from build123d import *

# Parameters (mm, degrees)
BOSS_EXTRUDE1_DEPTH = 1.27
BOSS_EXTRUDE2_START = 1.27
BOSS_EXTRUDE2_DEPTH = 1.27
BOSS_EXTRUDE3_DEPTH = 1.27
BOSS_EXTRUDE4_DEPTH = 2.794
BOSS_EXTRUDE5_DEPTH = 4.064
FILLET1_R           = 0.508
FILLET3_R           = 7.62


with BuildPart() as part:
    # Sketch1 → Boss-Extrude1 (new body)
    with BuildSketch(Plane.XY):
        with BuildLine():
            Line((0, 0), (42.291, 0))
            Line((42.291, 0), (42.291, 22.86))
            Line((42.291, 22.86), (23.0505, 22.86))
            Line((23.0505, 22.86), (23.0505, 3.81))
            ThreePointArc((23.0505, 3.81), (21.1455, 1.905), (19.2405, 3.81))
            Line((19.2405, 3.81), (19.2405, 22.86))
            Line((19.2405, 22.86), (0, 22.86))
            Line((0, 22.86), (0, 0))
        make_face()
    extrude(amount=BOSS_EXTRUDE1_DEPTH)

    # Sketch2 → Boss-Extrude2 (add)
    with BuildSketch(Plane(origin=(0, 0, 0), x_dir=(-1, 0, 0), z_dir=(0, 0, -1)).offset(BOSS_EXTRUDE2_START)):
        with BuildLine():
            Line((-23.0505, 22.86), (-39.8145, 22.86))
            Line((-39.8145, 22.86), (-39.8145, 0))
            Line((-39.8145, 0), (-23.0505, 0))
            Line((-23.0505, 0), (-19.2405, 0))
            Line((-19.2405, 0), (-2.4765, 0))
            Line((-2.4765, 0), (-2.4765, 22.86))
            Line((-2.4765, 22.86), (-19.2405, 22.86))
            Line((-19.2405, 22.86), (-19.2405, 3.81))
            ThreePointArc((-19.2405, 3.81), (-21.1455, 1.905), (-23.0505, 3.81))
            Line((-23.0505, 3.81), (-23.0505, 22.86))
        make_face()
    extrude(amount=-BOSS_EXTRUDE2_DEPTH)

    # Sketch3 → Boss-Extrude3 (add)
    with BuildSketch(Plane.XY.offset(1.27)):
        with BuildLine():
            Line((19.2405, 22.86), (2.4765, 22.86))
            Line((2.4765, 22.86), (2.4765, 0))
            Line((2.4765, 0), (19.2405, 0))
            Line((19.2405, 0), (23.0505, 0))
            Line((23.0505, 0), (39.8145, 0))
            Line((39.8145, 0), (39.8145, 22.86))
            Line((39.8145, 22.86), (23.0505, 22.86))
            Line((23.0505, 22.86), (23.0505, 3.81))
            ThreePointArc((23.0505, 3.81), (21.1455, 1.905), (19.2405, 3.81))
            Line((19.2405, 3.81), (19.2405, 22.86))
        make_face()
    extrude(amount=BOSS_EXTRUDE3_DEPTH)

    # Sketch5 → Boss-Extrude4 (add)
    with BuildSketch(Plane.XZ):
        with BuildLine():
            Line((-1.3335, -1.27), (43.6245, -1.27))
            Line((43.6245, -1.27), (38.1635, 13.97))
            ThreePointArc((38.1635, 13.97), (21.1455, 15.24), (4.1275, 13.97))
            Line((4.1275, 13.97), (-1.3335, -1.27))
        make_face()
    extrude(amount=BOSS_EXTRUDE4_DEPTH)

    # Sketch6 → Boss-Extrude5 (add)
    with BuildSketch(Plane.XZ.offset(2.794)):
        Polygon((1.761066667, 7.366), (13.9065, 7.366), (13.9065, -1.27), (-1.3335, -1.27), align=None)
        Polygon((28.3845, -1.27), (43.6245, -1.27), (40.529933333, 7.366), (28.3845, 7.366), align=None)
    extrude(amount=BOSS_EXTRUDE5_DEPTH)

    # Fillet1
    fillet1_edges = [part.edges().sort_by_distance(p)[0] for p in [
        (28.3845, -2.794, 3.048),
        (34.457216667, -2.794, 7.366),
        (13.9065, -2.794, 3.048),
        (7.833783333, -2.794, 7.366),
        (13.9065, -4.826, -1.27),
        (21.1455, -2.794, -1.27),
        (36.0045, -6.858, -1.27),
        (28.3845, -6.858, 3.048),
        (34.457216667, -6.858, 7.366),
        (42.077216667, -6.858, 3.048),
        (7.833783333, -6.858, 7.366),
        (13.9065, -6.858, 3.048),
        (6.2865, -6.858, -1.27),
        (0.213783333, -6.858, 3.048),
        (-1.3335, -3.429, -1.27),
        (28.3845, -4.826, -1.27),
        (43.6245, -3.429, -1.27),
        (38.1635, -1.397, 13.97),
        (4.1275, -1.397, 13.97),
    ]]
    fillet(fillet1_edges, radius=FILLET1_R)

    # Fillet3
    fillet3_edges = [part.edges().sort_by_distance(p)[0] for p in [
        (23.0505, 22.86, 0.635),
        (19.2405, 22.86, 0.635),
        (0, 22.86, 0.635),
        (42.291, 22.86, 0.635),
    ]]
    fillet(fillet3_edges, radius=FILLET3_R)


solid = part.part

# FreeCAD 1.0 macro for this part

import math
import FreeCAD as App
import Part
import Sketcher

V = App.Vector
Q = App.Units.Quantity


def edges_at(feature, points):
    """Names of the edges that pass closest to the given points."""
    edges = feature.Shape.Edges
    near = lambda p: min(range(len(edges)), key=lambda i: edges[i].distToShape(Part.Vertex(*p))[0])
    return sorted({f"Edge{near(p) + 1}" for p in points})


def add_polygon(sketch, points):
    """Adds a closed chain of lines whose ends are joined by coincident constraints."""
    first, n = sketch.GeometryCount, len(points)
    for a, b in zip(points, points[1:] + points[:1]):
        sketch.addGeometry(Part.LineSegment(App.Vector(*a, 0), App.Vector(*b, 0)), False)
    for i in range(n):
        sketch.addConstraint(Sketcher.Constraint("Coincident", first + i, 2, first + (i + 1) % n, 1))

doc = App.newDocument("Part")
body = doc.addObject("PartDesign::Body", "Body")

# Sketch on XY plane
sketch1 = body.newObject("Sketcher::SketchObject", "Sketch")
sketch1.AttachmentSupport = (doc.getObject("XY_Plane"), [""])
sketch1.MapMode = "FlatFace"
sketch1.addGeometry([
    Part.LineSegment(V(0, 0, 0), V(42.3, 0, 0)),  # 0
    Part.LineSegment(V(42.3, 0, 0), V(42.3, 22.9, 0)),  # 1
    Part.LineSegment(V(42.3, 22.9, 0), V(23.1, 22.9, 0)),  # 2
    Part.LineSegment(V(23.1, 22.9, 0), V(23.1, 3.8, 0)),  # 3
    Part.ArcOfCircle(Part.Circle(V(21.1, 3.8, 0), V(0, 0, 1), 1.9), math.radians(180), math.radians(360)),  # 4
    Part.LineSegment(V(19.2, 3.8, 0), V(19.2, 22.9, 0)),  # 5
    Part.LineSegment(V(19.2, 22.9, 0), V(0, 22.9, 0)),  # 6
    Part.LineSegment(V(0, 22.9, 0), V(0, 0, 0)),  # 7
], False)
sketch1.addConstraint([
    Sketcher.Constraint("Coincident", 0, 2, 1, 1),
    Sketcher.Constraint("Coincident", 1, 2, 2, 1),
    Sketcher.Constraint("Coincident", 2, 2, 3, 1),
    Sketcher.Constraint("Tangent", 3, 2, 4, 2),
    Sketcher.Constraint("Tangent", 4, 1, 5, 1),
    Sketcher.Constraint("Coincident", 5, 2, 6, 1),
    Sketcher.Constraint("Coincident", 6, 2, 7, 1),
    Sketcher.Constraint("Coincident", 7, 2, 0, 1),
    Sketcher.Constraint("Horizontal", 0),
    Sketcher.Constraint("Vertical", 1),
    Sketcher.Constraint("Horizontal", 2),
    Sketcher.Constraint("Vertical", 3),
    Sketcher.Constraint("Vertical", 5),
    Sketcher.Constraint("Horizontal", 6),
    Sketcher.Constraint("Vertical", 7),
    Sketcher.Constraint("Coincident", 7, 2, -1, 1),
    Sketcher.Constraint("Horizontal", 2, 2, 5, 2),
    Sketcher.Constraint("Equal", 2, 6),
    Sketcher.Constraint("DistanceY", 1, 1, 1, 2, Q("0.9 in")),
    Sketcher.Constraint("Radius", 4, Q("0.075 in")),
    Sketcher.Constraint("DistanceY", 3, 2, 3, 1, Q("0.75 in")),
    Sketcher.Constraint("DistanceX", 0, 1, 0, 2, Q("1.665 in")),
])
pad1 = body.newObject("PartDesign::Pad", "Pad")
pad1.Profile = sketch1
pad1.Length = Q("0.05 in")

# Sketch on XY plane
sketch2 = body.newObject("Sketcher::SketchObject", "Sketch001")
sketch2.AttachmentSupport = (doc.getObject("XY_Plane"), [""])
sketch2.MapMode = "FlatFace"
sketch2.AttachmentOffset = App.Placement(V(0, 0, -0.05 * 25.4), App.Rotation())
sketch2.addGeometry([
    Part.LineSegment(V(23.1, 22.9, 0), V(39.8, 22.9, 0)),  # 0
    Part.LineSegment(V(39.8, 22.9, 0), V(39.8, 0, 0)),  # 1
    Part.LineSegment(V(39.8, 0, 0), V(2.5, 0, 0)),  # 2
    Part.LineSegment(V(2.5, 0, 0), V(2.5, 22.9, 0)),  # 3
    Part.LineSegment(V(2.5, 22.9, 0), V(19.2, 22.9, 0)),  # 4
    Part.LineSegment(V(19.2, 22.9, 0), V(19.2, 3.8, 0)),  # 5
    Part.ArcOfCircle(Part.Circle(V(21.1, 3.8, 0), V(0, 0, 1), 1.9), math.radians(180), math.radians(360)),  # 6
    Part.LineSegment(V(23.1, 3.8, 0), V(23.1, 22.9, 0)),  # 7
], False)
sketch2.addConstraint([
    Sketcher.Constraint("Coincident", 0, 2, 1, 1),
    Sketcher.Constraint("Coincident", 1, 2, 2, 1),
    Sketcher.Constraint("Coincident", 2, 2, 3, 1),
    Sketcher.Constraint("Coincident", 3, 2, 4, 1),
    Sketcher.Constraint("Coincident", 4, 2, 5, 1),
    Sketcher.Constraint("Tangent", 5, 2, 6, 1),
    Sketcher.Constraint("Tangent", 6, 2, 7, 1),
    Sketcher.Constraint("Coincident", 7, 2, 0, 1),
    Sketcher.Constraint("Horizontal", 0),
    Sketcher.Constraint("Vertical", 1),
    Sketcher.Constraint("Horizontal", 2),
    Sketcher.Constraint("Vertical", 3),
    Sketcher.Constraint("Horizontal", 4),
    Sketcher.Constraint("Vertical", 5),
    Sketcher.Constraint("Vertical", 7),
    Sketcher.Constraint("PointOnObject", 1, 2, -1),
    Sketcher.Constraint("Horizontal", 0, 2, 3, 2),
    Sketcher.Constraint("Equal", 0, 4),
    Sketcher.Constraint("DistanceY", 1, 2, 1, 1, Q("0.9 in")),
    Sketcher.Constraint("Radius", 6, Q("0.075 in")),
    Sketcher.Constraint("DistanceX", 0, 1, 0, 2, Q("0.66 in")),
    Sketcher.Constraint("DistanceY", 5, 2, 5, 1, Q("0.75 in")),
    Sketcher.Constraint("DistanceX", -1, 1, 6, 3, Q("0.8325 in")),
])
pad2 = body.newObject("PartDesign::Pad", "Pad001")
pad2.Profile = sketch2
pad2.Length = Q("0.05 in")

# Sketch on XY plane
sketch3 = body.newObject("Sketcher::SketchObject", "Sketch002")
sketch3.AttachmentSupport = (doc.getObject("XY_Plane"), [""])
sketch3.MapMode = "FlatFace"
sketch3.AttachmentOffset = App.Placement(V(0, 0, 0.05 * 25.4), App.Rotation())
sketch3.addGeometry([
    Part.LineSegment(V(19.2, 22.9, 0), V(2.5, 22.9, 0)),  # 0
    Part.LineSegment(V(2.5, 22.9, 0), V(2.5, 0, 0)),  # 1
    Part.LineSegment(V(2.5, 0, 0), V(39.8, 0, 0)),  # 2
    Part.LineSegment(V(39.8, 0, 0), V(39.8, 22.9, 0)),  # 3
    Part.LineSegment(V(39.8, 22.9, 0), V(23.1, 22.9, 0)),  # 4
    Part.LineSegment(V(23.1, 22.9, 0), V(23.1, 3.8, 0)),  # 5
    Part.ArcOfCircle(Part.Circle(V(21.1, 3.8, 0), V(0, 0, 1), 1.9), math.radians(180), math.radians(360)),  # 6
    Part.LineSegment(V(19.2, 3.8, 0), V(19.2, 22.9, 0)),  # 7
], False)
sketch3.addConstraint([
    Sketcher.Constraint("Coincident", 0, 2, 1, 1),
    Sketcher.Constraint("Coincident", 1, 2, 2, 1),
    Sketcher.Constraint("Coincident", 2, 2, 3, 1),
    Sketcher.Constraint("Coincident", 3, 2, 4, 1),
    Sketcher.Constraint("Coincident", 4, 2, 5, 1),
    Sketcher.Constraint("Tangent", 5, 2, 6, 2),
    Sketcher.Constraint("Tangent", 6, 1, 7, 1),
    Sketcher.Constraint("Coincident", 7, 2, 0, 1),
    Sketcher.Constraint("Horizontal", 0),
    Sketcher.Constraint("Vertical", 1),
    Sketcher.Constraint("Horizontal", 2),
    Sketcher.Constraint("Vertical", 3),
    Sketcher.Constraint("Horizontal", 4),
    Sketcher.Constraint("Vertical", 5),
    Sketcher.Constraint("Vertical", 7),
    Sketcher.Constraint("PointOnObject", 1, 2, -1),
    Sketcher.Constraint("Horizontal", 0, 2, 3, 2),
    Sketcher.Constraint("Equal", 0, 4),
    Sketcher.Constraint("DistanceY", 1, 2, 1, 1, Q("0.9 in")),
    Sketcher.Constraint("Radius", 6, Q("0.075 in")),
    Sketcher.Constraint("DistanceX", 0, 2, 0, 1, Q("0.66 in")),
    Sketcher.Constraint("DistanceY", 5, 2, 5, 1, Q("0.75 in")),
    Sketcher.Constraint("DistanceX", -1, 1, 6, 3, Q("0.8325 in")),
])
pad3 = body.newObject("PartDesign::Pad", "Pad002")
pad3.Profile = sketch3
pad3.Length = Q("0.05 in")

# Sketch on XZ plane
sketch4 = body.newObject("Sketcher::SketchObject", "Sketch003")
sketch4.AttachmentSupport = (doc.getObject("XZ_Plane"), [""])
sketch4.MapMode = "FlatFace"
sketch4.addGeometry([
    Part.LineSegment(V(-1, -1, 0), V(44, -1, 0)),
    Part.LineSegment(V(44, -1, 0), V(38, 14, 0)),
    Part.ArcOfCircle(Part.Circle(V(21, -99, 0), V(0, 0, 1), 115), math.radians(81.46), math.radians(98.54)),
    Part.LineSegment(V(4, 14, 0), V(-1, -1, 0)),
], False)
sketch4.addConstraint([
    Sketcher.Constraint("Coincident", 0, 2, 1, 1),
    Sketcher.Constraint("Coincident", 1, 2, 2, 1),
    Sketcher.Constraint("Coincident", 2, 2, 3, 1),
    Sketcher.Constraint("Coincident", 3, 2, 0, 1),
    Sketcher.Constraint("Horizontal", 0),
    Sketcher.Constraint("Horizontal", 1, 2, 2, 2),
    Sketcher.Constraint("Equal", 1, 3),
    Sketcher.Constraint("Radius", 2, Q("4.514 in")),
    Sketcher.Constraint("DistanceX", 0, 1, 0, 2, Q("1.77 in")),
    Sketcher.Constraint("DistanceY", 0, 2, 1, 2, Q("0.6 in")),
    Sketcher.Constraint("DistanceY", 0, 2, -1, 1, Q("0.05 in")),
    Sketcher.Constraint("DistanceX", 2, 3, 1, 2, Q("0.67 in")),
    Sketcher.Constraint("DistanceX", -1, 1, 2, 3, Q("0.8325 in")),
])
pad4 = body.newObject("PartDesign::Pad", "Pad003")
pad4.Profile = sketch4
pad4.Length = Q("0.11 in")

# Sketch on XZ plane
sketch5 = body.newObject("Sketcher::SketchObject", "Sketch004")
sketch5.AttachmentSupport = (doc.getObject("XZ_Plane"), [""])
sketch5.MapMode = "FlatFace"
sketch5.AttachmentOffset = App.Placement(V(0, 0, 0.11 * 25.4), App.Rotation())
add_polygon(sketch5, [(14, 7), (2, 7), (-1, -1), (14, -1)])  # lines 0-3
add_polygon(sketch5, [(28, -1), (44, -1), (41, 7), (28, 7)])  # lines 4-7
sketch5.addConstraint([
    Sketcher.Constraint("Horizontal", 0),
    Sketcher.Constraint("Horizontal", 2),
    Sketcher.Constraint("Vertical", 3),
    Sketcher.Constraint("Horizontal", 4),
    Sketcher.Constraint("Horizontal", 6),
    Sketcher.Constraint("Vertical", 7),
    Sketcher.Constraint("Horizontal", 2, 2, 4, 2),
    Sketcher.Constraint("Horizontal", 3, 2, 5, 2),
    Sketcher.Constraint("Equal", 2, 4),
    Sketcher.Constraint("Equal", 0, 6),
    Sketcher.Constraint("DistanceX", 2, 1, 2, 2, Q("0.6 in")),
    Sketcher.Constraint("DistanceY", 3, 1, 3, 2, Q("0.34 in")),
    Sketcher.Constraint("DistanceY", -1, 1, 0, 2, Q("0.29 in")),
    Sketcher.Constraint("DistanceX", 2, 2, 4, 2, Q("1.17 in")),
    Sketcher.Constraint("DistanceX", 1, 2, -1, 1, Q("0.0525 in")),
    Sketcher.Constraint("DistanceX", 0, 2, 0, 1, 12.145433),
])
pad5 = body.newObject("PartDesign::Pad", "Pad004")
pad5.Profile = sketch5
pad5.Length = Q("0.16 in")
doc.recompute()

fillet = body.newObject("PartDesign::Fillet", "Fillet")
fillet.Base = (pad5, edges_at(pad5, [
    (28.384, -2.794, 3.048),
    (34.457, -2.794, 7.366),
    (13.906, -2.794, 3.048),
    (7.834, -2.794, 7.366),
    (13.906, -4.826, -1.27),
    (21.145, -2.794, -1.27),
    (36.005, -6.858, -1.27),
    (28.384, -6.858, 3.048),
    (34.457, -6.858, 7.366),
    (42.077, -6.858, 3.048),
    (7.834, -6.858, 7.366),
    (13.906, -6.858, 3.048),
    (6.287, -6.858, -1.27),
    (0.214, -6.858, 3.048),
    (-1.333, -4.826, -1.27),
    (28.384, -4.826, -1.27),
    (43.624, -4.826, -1.27),
    (38.163, -1.397, 13.97),
    (4.128, -1.397, 13.97),
]))
fillet.Radius = Q("0.02 in")
doc.recompute()

fillet2 = body.newObject("PartDesign::Fillet", "Fillet001")
fillet2.Base = (fillet, edges_at(fillet, [
    (23.05, 22.86, 0.635),
    (19.241, 22.86, 0.635),
    (0, 22.86, 0.635),
    (42.291, 22.86, 0.635),
]))
fillet2.Radius = Q("0.3 in")

doc.recompute()
